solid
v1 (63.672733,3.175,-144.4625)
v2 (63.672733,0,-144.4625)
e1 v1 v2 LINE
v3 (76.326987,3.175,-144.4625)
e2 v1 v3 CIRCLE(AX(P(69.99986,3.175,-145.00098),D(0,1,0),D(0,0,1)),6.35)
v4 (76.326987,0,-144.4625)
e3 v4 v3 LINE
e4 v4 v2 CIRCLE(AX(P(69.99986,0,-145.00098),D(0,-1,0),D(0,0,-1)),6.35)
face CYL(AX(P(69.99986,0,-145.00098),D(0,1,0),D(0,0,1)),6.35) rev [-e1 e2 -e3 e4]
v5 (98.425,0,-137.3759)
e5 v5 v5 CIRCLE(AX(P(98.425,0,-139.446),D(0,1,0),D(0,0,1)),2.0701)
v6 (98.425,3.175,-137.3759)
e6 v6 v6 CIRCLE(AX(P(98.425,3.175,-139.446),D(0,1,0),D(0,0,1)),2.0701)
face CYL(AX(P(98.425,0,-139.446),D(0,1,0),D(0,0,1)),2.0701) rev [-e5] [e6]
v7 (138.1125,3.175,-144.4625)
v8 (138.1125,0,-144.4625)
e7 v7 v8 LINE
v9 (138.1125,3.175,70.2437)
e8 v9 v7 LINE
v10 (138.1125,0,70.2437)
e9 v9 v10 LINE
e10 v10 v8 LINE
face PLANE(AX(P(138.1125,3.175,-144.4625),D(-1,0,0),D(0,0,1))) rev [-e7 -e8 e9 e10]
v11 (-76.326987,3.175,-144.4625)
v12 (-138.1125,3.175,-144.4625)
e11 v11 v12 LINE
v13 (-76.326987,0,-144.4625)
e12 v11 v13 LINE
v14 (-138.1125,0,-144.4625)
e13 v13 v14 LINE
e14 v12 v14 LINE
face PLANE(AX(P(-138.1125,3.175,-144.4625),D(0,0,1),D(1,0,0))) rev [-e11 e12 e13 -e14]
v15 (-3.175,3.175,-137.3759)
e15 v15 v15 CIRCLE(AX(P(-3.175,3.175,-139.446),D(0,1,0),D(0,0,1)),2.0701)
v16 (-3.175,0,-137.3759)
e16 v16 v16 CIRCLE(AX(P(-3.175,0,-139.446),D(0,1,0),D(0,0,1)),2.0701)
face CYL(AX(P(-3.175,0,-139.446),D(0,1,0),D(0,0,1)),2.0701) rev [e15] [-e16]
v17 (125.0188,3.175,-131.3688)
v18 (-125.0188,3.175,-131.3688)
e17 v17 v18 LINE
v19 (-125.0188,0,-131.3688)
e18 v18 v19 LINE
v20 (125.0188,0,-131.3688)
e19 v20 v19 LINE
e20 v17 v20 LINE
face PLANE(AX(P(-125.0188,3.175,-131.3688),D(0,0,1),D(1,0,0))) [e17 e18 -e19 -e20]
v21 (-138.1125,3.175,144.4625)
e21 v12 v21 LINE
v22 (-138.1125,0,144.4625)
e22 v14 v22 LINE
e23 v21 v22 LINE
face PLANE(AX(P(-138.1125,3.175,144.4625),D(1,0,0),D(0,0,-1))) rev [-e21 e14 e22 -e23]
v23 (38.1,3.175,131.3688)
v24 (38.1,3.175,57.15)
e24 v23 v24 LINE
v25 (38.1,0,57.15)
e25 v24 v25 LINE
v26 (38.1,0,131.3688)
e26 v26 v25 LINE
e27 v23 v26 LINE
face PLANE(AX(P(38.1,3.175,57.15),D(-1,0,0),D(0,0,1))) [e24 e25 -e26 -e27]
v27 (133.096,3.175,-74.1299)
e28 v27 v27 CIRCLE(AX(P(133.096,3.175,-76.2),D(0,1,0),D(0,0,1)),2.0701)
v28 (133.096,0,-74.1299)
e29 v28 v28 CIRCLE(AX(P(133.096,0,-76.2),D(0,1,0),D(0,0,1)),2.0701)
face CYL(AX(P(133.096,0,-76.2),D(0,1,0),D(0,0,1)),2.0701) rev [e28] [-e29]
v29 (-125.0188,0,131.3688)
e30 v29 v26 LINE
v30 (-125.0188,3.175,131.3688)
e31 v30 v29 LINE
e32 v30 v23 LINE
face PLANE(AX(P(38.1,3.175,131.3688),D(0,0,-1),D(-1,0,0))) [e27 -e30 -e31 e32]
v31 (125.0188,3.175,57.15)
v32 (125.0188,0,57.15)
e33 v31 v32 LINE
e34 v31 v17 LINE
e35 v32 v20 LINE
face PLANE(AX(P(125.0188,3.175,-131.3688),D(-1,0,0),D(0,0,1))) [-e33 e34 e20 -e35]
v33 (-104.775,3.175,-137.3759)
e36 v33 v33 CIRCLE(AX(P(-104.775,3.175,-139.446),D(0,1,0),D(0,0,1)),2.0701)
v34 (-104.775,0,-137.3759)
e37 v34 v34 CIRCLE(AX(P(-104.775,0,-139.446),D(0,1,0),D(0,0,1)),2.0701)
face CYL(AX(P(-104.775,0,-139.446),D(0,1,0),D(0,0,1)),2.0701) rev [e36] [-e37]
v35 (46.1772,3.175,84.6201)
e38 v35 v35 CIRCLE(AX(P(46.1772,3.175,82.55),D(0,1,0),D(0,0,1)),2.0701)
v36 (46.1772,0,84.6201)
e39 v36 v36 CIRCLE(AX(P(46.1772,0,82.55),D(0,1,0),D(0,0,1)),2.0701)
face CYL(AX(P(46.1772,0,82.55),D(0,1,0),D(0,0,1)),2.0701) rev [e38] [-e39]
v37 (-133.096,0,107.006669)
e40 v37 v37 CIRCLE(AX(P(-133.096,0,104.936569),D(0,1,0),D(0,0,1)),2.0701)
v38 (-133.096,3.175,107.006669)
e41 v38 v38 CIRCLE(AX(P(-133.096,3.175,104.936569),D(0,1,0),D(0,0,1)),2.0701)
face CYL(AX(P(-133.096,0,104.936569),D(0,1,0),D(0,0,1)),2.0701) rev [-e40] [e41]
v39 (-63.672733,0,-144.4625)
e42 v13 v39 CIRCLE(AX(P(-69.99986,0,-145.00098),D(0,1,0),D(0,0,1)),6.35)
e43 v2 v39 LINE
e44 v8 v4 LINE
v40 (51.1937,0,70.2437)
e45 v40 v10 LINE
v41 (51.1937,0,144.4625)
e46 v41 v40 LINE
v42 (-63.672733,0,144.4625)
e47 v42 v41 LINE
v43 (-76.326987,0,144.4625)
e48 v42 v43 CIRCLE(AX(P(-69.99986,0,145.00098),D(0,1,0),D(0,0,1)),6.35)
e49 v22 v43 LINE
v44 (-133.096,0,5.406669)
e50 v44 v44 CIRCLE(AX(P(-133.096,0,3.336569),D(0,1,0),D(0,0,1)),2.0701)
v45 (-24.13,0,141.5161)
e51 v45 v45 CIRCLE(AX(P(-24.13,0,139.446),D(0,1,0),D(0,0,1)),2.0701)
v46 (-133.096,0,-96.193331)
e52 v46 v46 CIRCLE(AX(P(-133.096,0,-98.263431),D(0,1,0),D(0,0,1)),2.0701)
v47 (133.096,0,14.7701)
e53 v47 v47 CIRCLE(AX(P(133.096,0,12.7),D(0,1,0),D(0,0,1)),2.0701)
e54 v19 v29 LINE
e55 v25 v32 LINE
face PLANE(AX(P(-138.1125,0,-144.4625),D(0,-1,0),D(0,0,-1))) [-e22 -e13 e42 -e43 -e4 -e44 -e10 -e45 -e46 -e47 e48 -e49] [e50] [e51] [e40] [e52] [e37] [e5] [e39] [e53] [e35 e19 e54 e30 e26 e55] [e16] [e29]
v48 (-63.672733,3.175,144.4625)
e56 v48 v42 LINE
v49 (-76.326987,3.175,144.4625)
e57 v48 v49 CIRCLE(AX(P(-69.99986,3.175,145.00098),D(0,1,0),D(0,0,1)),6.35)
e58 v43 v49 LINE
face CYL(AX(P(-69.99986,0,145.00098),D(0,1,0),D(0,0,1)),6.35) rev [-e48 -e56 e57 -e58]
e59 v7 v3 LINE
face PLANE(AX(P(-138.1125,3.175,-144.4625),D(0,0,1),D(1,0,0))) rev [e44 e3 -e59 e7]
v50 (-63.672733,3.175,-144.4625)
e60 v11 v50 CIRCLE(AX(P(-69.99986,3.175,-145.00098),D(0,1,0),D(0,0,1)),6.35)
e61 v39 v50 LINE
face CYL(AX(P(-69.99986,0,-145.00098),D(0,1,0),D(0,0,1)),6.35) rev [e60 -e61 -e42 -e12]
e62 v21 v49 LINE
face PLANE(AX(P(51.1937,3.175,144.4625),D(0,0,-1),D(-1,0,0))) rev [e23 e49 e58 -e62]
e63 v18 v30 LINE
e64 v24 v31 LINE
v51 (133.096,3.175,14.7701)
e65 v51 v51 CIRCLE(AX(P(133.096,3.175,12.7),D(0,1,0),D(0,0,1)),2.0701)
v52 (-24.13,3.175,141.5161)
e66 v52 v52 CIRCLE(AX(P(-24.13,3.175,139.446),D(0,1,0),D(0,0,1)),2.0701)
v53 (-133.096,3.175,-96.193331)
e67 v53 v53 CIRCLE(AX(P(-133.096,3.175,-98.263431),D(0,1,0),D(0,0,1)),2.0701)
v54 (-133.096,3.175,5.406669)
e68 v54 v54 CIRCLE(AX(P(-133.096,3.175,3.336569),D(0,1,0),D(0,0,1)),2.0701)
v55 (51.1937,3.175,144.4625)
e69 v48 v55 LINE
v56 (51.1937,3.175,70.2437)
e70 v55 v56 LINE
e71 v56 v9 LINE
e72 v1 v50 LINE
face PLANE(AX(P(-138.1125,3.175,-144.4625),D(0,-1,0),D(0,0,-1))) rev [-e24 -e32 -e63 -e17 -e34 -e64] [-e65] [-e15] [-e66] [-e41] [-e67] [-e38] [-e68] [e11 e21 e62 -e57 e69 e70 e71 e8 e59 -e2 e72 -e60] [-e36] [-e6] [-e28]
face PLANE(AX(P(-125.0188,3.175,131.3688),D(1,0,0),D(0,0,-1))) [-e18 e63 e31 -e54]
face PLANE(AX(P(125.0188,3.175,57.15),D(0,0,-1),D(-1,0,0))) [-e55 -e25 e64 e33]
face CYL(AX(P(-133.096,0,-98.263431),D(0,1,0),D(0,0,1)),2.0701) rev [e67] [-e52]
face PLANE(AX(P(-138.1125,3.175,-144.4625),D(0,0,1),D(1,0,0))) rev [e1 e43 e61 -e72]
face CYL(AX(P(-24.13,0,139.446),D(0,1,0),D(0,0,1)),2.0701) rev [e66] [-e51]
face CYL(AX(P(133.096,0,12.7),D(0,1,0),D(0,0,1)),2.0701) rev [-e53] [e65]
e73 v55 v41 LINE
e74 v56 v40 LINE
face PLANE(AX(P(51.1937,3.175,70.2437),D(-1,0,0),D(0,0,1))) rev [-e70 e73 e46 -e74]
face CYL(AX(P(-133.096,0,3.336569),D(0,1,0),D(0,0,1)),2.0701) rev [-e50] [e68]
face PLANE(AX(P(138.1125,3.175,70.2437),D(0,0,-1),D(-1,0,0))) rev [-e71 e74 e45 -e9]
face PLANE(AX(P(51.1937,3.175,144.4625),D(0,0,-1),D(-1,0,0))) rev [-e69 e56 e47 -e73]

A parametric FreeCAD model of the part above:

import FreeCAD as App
import Part
import Sketcher

V = App.Vector
Q = App.Units.Quantity


def add_polygon(sketch, points):
    """Adds a closed chain of lines whose ends are joined by coincident constraints."""
    first, n = sketch.GeometryCount, len(points)
    for a, b in zip(points, points[1:] + points[:1]):
        sketch.addGeometry(Part.LineSegment(App.Vector(*a, 0), App.Vector(*b, 0)), False)
    for i in range(n):
        sketch.addConstraint(Sketcher.Constraint("Coincident", first + i, 2, first + (i + 1) % n, 1))

doc = App.newDocument("Part")
body = doc.addObject("PartDesign::Body", "Body")

# Sketch on XZ plane
sketch1 = body.newObject("Sketcher::SketchObject", "Sketch")
sketch1.AttachmentSupport = (doc.getObject("XZ_Plane"), [""])
sketch1.MapMode = "FlatFace"
add_polygon(sketch1, [(138.1125, -144.4625), (-138.1125, -144.4625), (-138.1125, 144.4625), (51.1937, 144.4625), (51.1937, 70.2437), (138.1125, 70.2437)])  # lines 0-5
add_polygon(sketch1, [(-125.0188, -131.3688), (125.0188, -131.3688), (125.0188, 57.15), (38.1, 57.15), (38.1, 131.3688), (-125.0188, 131.3688)])  # lines 6-11
sketch1.addConstraint([
    Sketcher.Constraint("Horizontal", 0),
    Sketcher.Constraint("Vertical", 1),
    Sketcher.Constraint("Horizontal", 2),
    Sketcher.Constraint("Vertical", 3),
    Sketcher.Constraint("Horizontal", 4),
    Sketcher.Constraint("Vertical", 5),
    Sketcher.Constraint("Horizontal", 6),
    Sketcher.Constraint("Vertical", 7),
    Sketcher.Constraint("Horizontal", 8),
    Sketcher.Constraint("Vertical", 9),
    Sketcher.Constraint("Horizontal", 10),
    Sketcher.Constraint("Vertical", 11),
    Sketcher.Constraint("Symmetric", 1, 2, 5, 2, -1, 1),
    Sketcher.Constraint("Symmetric", 6, 2, 10, 2, -1, 1),
    Sketcher.Constraint("Equal", 4, 8),
    Sketcher.Constraint("Equal", 3, 9),
    Sketcher.Constraint("DistanceX", -1, 1, 8, 2, Q("1.5 in")),
    Sketcher.Constraint("DistanceX", 0, 2, 0, 1, Q("10.875 in")),
    Sketcher.Constraint("DistanceX", 2, 1, 2, 2, Q("7.453 in")),
    Sketcher.Constraint("DistanceY", 1, 1, 1, 2, Q("11.375 in")),
    Sketcher.Constraint("DistanceY", 3, 2, 3, 1, Q("2.922 in")),
    Sketcher.Constraint("DistanceY", 7, 1, 7, 2, Q("7.422 in")),
])
pad1 = body.newObject("PartDesign::Pad", "Pad")
pad1.Profile = sketch1
pad1.Length = Q("0.125 in")
pad1.Reversed = True

# Sketch on XZ plane
sketch2 = body.newObject("Sketcher::SketchObject", "Sketch001")
sketch2.AttachmentSupport = (doc.getObject("XZ_Plane"), [""])
sketch2.MapMode = "FlatFace"
sketch2.AttachmentOffset = App.Placement(V(0, 0, -0.125 * 25.4), App.Rotation())
sketch2.addGeometry([
    Part.Circle(V(-24.13, 139.446, 0), V(0, 0, 1), 2.0701),  # 0
    Part.Circle(V(-104.775, -139.446, 0), V(0, 0, 1), 2.0701),  # 1
    Part.Circle(V(-3.175, -139.446, 0), V(0, 0, 1), 2.0701),  # 2
    Part.Circle(V(-133.096, 104.936569, 0), V(0, 0, 1), 2.0701),  # 3
    Part.Circle(V(-133.096, 3.336569, 0), V(0, 0, 1), 2.0701),  # 4
    Part.Circle(V(-133.096, -98.263431, 0), V(0, 0, 1), 2.0701),  # 5
    Part.Circle(V(98.425, -139.446, 0), V(0, 0, 1), 2.0701),  # 6
    Part.Circle(V(133.096, -76.2, 0), V(0, 0, 1), 2.0701),  # 7
    Part.Circle(V(133.096, 12.7, 0), V(0, 0, 1), 2.0701),  # 8
    Part.Circle(V(46.1772, 82.55, 0), V(0, 0, 1), 2.0701),  # 9
], False)
sketch2.addConstraint([
    Sketcher.Constraint("Equal", 0, 1),
    Sketcher.Constraint("Equal", 1, 2),
    Sketcher.Constraint("Equal", 2, 3),
    Sketcher.Constraint("Equal", 3, 4),
    Sketcher.Constraint("Equal", 4, 5),
    Sketcher.Constraint("Equal", 5, 6),
    Sketcher.Constraint("Equal", 6, 7),
    Sketcher.Constraint("Equal", 7, 8),
    Sketcher.Constraint("Equal", 8, 9),
    Sketcher.Constraint("Horizontal", 1, 3, 2, 3),
    Sketcher.Constraint("Horizontal", 2, 3, 6, 3),
    Sketcher.Constraint("Vertical", 3, 3, 4, 3),
    Sketcher.Constraint("Vertical", 4, 3, 5, 3),
    Sketcher.Constraint("Vertical", 7, 3, 8, 3),
    Sketcher.Constraint("Diameter", 0, Q("0.163 in")),
    Sketcher.Constraint("DistanceY", 7, 3, -1, 1, Q("3 in")),
    Sketcher.Constraint("DistanceX", 1, 3, 2, 3, Q("4 in")),
    Sketcher.Constraint("DistanceY", 4, 3, 3, 3, Q("4 in")),
    Sketcher.Constraint("DistanceY", 5, 3, 4, 3, Q("4 in")),
    Sketcher.Constraint("DistanceX", 2, 3, 6, 3, Q("4 in")),
    Sketcher.Constraint("DistanceY", -1, 1, 8, 3, Q("0.5 in")),
    Sketcher.Constraint("DistanceX", 0, 3, -1, 1, Q("0.95 in")),
    Sketcher.Constraint("DistanceY", -1, 1, 0, 3, Q("5.49 in")),
    Sketcher.Constraint("DistanceY", 1, 3, -1, 1, Q("5.49 in")),
    Sketcher.Constraint("DistanceX", 3, 3, -1, 1, Q("5.24 in")),
    Sketcher.Constraint("DistanceX", -1, 1, 7, 3, Q("5.24 in")),
    Sketcher.Constraint("DistanceY", -1, 1, 9, 3, Q("3.25 in")),
    Sketcher.Constraint("DistanceX", 1, 3, -1, 1, Q("4.125 in")),
    Sketcher.Constraint("DistanceX", -1, 1, 9, 3, Q("1.818 in")),
    Sketcher.Constraint("DistanceY", -1, 1, 3, 3, Q("104.936569 mm")),
])
pocket1 = body.newObject("PartDesign::Pocket", "Pocket")
pocket1.Profile = sketch2
pocket1.Type = "ThroughAll"
pocket1.Reversed = True

# Sketch on XZ plane
sketch3 = body.newObject("Sketcher::SketchObject", "Sketch002")
sketch3.AttachmentSupport = (doc.getObject("XZ_Plane"), [""])
sketch3.MapMode = "FlatFace"
sketch3.AttachmentOffset = App.Placement(V(0, 0, -0.125 * 25.4), App.Rotation())
sketch3.addGeometry([
    Part.Circle(V(-69.99986, 145.00098, 0), V(0, 0, 1), 6.35),
    Part.Circle(V(-69.99986, -145.00098, 0), V(0, 0, 1), 6.35),
    Part.Circle(V(69.99986, -145.00098, 0), V(0, 0, 1), 6.35),
], False)
sketch3.addConstraint([
    Sketcher.Constraint("Equal", 0, 1),
    Sketcher.Constraint("Equal", 1, 2),
    Sketcher.Constraint("Symmetric", 0, 3, 2, 3, -1, 1),
    Sketcher.Constraint("Symmetric", 1, 3, 2, 3, -2),
    Sketcher.Constraint("Diameter", 0, Q("0.5 in")),
    Sketcher.Constraint("DistanceX", 0, 3, -1, 1, Q("2.7559 in")),
    Sketcher.Constraint("DistanceY", -1, 1, 0, 3, Q("5.7087 in")),
])
pocket2 = body.newObject("PartDesign::Pocket", "Pocket001")
pocket2.Profile = sketch3
pocket2.Type = "ThroughAll"
pocket2.Reversed = True

doc.recompute()
